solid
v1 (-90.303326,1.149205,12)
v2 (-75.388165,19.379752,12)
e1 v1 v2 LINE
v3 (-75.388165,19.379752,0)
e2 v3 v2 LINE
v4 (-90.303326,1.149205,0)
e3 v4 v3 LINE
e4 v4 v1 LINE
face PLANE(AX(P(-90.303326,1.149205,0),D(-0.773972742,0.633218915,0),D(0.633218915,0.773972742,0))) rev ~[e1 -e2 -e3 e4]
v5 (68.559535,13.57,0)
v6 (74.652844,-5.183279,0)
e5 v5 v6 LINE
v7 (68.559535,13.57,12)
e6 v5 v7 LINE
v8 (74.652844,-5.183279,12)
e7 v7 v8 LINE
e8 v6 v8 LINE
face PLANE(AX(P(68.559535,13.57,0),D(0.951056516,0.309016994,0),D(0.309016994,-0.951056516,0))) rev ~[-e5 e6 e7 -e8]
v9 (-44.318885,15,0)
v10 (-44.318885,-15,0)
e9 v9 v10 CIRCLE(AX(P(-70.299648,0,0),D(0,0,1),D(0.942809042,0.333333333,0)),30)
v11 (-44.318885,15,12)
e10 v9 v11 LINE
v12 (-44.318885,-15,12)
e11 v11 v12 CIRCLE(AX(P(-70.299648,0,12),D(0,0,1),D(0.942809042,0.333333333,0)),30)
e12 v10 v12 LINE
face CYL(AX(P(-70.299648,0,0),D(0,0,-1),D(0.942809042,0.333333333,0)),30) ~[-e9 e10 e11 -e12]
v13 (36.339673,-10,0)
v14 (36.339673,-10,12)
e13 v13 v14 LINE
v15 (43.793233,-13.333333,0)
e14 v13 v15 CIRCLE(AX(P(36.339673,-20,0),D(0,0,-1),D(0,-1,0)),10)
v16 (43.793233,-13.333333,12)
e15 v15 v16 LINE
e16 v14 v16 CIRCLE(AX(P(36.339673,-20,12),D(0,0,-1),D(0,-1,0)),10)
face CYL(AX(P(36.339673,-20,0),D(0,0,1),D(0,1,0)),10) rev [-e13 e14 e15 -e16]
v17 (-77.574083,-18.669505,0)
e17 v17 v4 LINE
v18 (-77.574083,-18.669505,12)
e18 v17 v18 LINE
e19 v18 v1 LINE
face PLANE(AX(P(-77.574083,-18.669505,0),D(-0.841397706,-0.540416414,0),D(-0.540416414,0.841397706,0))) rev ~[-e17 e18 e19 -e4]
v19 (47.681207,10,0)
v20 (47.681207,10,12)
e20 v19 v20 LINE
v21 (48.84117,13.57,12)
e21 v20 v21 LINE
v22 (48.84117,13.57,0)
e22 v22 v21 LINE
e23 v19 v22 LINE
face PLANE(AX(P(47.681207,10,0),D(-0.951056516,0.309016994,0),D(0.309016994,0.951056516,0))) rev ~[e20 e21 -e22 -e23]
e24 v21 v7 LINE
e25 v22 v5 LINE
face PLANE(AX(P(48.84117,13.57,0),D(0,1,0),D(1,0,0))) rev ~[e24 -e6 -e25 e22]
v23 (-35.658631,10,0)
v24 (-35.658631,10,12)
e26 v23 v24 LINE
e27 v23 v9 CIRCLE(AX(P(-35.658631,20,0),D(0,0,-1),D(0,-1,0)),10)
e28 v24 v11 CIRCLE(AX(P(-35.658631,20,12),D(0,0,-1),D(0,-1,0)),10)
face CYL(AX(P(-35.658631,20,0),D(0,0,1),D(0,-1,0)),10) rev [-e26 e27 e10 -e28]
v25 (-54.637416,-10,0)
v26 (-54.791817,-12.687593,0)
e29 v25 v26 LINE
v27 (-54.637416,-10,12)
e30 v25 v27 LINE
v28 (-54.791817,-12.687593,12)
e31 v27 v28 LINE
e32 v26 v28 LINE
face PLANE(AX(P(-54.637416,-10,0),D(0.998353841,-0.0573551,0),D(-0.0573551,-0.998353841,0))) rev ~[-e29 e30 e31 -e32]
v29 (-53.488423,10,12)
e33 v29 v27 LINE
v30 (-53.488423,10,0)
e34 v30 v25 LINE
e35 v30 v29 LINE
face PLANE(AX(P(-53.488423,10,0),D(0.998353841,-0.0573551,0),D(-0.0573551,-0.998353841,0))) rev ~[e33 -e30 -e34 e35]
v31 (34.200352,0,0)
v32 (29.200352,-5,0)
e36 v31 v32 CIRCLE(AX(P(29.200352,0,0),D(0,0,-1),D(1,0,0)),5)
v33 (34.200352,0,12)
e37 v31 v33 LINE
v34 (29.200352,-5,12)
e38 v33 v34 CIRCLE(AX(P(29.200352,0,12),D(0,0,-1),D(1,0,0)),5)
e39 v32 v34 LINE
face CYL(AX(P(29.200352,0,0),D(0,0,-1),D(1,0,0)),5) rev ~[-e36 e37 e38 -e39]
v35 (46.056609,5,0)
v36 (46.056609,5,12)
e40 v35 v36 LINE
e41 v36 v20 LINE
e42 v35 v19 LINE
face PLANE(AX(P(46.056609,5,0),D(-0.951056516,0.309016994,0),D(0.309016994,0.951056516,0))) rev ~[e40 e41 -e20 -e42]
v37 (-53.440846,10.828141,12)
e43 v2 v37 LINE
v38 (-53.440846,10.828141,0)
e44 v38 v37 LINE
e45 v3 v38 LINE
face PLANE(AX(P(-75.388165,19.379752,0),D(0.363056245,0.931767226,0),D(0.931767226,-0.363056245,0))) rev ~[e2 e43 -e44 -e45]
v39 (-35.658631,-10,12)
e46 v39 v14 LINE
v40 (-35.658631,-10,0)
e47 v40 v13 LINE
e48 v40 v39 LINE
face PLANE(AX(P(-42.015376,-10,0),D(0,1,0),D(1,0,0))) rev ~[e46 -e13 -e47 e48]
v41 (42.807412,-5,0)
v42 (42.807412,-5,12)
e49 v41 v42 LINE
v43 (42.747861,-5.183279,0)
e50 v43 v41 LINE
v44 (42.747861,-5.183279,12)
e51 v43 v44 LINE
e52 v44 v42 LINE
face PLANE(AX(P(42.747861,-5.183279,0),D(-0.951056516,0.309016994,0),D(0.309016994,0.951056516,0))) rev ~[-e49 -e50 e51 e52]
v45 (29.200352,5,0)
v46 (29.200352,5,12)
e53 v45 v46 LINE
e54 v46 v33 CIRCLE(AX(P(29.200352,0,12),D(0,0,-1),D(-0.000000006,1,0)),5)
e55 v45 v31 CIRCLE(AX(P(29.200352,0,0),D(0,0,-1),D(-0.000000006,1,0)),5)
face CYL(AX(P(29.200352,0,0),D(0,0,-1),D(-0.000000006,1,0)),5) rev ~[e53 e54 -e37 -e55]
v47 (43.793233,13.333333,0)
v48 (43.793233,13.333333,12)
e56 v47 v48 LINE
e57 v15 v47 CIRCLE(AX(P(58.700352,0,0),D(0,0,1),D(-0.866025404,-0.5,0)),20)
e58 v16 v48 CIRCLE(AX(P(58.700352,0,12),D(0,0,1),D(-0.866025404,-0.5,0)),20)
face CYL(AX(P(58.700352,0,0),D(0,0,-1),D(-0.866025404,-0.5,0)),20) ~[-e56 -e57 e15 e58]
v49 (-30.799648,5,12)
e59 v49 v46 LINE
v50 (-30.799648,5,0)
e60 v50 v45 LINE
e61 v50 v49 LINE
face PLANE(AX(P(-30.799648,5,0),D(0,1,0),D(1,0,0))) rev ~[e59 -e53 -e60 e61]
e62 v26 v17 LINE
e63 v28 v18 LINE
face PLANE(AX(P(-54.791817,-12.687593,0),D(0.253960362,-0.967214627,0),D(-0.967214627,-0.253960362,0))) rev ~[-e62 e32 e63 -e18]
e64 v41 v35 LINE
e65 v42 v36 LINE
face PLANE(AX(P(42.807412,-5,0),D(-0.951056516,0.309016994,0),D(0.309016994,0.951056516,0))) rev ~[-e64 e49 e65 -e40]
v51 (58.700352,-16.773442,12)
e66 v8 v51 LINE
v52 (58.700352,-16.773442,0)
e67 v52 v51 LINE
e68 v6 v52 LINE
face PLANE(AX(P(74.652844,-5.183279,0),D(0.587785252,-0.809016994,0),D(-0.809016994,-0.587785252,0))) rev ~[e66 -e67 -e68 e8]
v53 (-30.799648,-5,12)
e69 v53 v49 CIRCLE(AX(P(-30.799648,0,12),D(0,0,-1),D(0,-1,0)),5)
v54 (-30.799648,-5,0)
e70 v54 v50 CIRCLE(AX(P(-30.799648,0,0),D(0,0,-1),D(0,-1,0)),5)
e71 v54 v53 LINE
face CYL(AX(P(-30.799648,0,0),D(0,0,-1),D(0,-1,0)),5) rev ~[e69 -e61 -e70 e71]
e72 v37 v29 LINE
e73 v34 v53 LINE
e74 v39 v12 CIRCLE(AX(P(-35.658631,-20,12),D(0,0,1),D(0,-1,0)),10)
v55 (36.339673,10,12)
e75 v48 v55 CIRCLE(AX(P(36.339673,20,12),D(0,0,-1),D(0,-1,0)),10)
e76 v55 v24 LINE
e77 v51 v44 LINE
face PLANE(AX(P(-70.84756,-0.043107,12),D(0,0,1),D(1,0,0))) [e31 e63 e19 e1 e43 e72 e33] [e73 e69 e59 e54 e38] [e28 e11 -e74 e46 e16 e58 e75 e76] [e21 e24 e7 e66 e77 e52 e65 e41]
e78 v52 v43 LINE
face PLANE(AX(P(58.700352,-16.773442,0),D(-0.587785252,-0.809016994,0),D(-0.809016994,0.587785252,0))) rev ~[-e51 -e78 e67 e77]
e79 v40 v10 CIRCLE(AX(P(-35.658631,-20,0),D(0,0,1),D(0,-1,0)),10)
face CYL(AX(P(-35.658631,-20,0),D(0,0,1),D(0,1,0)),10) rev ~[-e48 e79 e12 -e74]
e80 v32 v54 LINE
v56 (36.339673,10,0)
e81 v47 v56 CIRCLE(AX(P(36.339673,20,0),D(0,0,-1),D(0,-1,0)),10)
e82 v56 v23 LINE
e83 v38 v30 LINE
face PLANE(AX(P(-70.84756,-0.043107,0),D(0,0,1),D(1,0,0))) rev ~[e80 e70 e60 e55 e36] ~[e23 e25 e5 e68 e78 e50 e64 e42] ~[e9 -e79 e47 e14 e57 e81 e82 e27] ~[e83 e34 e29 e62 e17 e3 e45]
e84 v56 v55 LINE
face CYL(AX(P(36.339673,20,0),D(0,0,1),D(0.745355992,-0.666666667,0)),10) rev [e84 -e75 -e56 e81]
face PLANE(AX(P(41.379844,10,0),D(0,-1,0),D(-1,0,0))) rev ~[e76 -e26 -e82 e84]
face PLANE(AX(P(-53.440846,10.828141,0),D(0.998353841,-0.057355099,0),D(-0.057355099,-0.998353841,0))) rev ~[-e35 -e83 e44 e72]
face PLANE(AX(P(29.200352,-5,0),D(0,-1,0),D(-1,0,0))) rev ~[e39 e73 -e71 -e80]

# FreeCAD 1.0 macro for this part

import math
import FreeCAD as App
import Part
import Sketcher
Q = App.Units.Quantity


def edges_at(feature, points):
    """Names of the edges that pass closest to the given points."""
    edges = feature.Shape.Edges
    near = lambda p: min(range(len(edges)), key=lambda i: edges[i].distToShape(Part.Vertex(*p))[0])
    return sorted({f"Edge{near(p) + 1}" for p in points})

doc = App.newDocument("Part")
body = doc.addObject("PartDesign::Body", "Body")

# Sketch on XY plane
sketch1 = doc.addObject("Sketcher::SketchObject", "Sketch")
body.addObject(sketch1)
sketch1.AttachmentSupport = (doc.XY_Plane, [""])
sketch1.MapMode = "FlatFace"
sketch1.addGeometry([
    Part.LineSegment(App.Vector(-42.02, -10, 0), App.Vector(41.38, -10, 0)),  # 0
    Part.ArcOfCircle(Part.Circle(App.Vector(58.7, 0, 0), App.Vector(0, 0, 1), 20), math.radians(-150), math.radians(150)),  # 1
    Part.LineSegment(App.Vector(41.38, 10, 0), App.Vector(-42.02, 10, 0)),  # 2
    Part.ArcOfCircle(Part.Circle(App.Vector(-70.3, 0, 0), App.Vector(0, 0, 1), 30), math.radians(19), math.radians(341)),  # 3
    Part.LineSegment(App.Vector(29.2, -5, 0), App.Vector(-30.8, -5, 0)),  # 4
    Part.ArcOfCircle(Part.Circle(App.Vector(-30.8, 0, 0), App.Vector(0, 0, 1), 5), math.radians(90), math.radians(270)),  # 5
    Part.LineSegment(App.Vector(-30.8, 5, 0), App.Vector(29.2, 5, 0)),  # 6
    Part.ArcOfCircle(Part.Circle(App.Vector(29.2, 0, 0), App.Vector(0, 0, 1), 5), math.radians(0), math.radians(90)),  # 7
    Part.ArcOfCircle(Part.Circle(App.Vector(29.2, 0, 0), App.Vector(0, 0, 1), 5), math.radians(-90), math.radians(0)),  # 8
    Part.LineSegment(App.Vector(58.7, -16.77, 0), App.Vector(42.75, -5.18, 0)),  # 9
    Part.LineSegment(App.Vector(42.75, -5.18, 0), App.Vector(42.81, -5, 0)),  # 10
    Part.LineSegment(App.Vector(42.81, -5, 0), App.Vector(46.06, 5, 0)),  # 11
    Part.LineSegment(App.Vector(46.06, 5, 0), App.Vector(47.68, 10, 0)),  # 12
    Part.LineSegment(App.Vector(47.68, 10, 0), App.Vector(48.84, 13.57, 0)),  # 13
    Part.LineSegment(App.Vector(48.84, 13.57, 0), App.Vector(68.56, 13.57, 0)),  # 14
    Part.LineSegment(App.Vector(68.56, 13.57, 0), App.Vector(74.65, -5.18, 0)),  # 15
    Part.LineSegment(App.Vector(74.65, -5.18, 0), App.Vector(58.7, -16.77, 0)),  # 16
    Part.LineSegment(App.Vector(-54.64, -10, 0), App.Vector(-54.79, -12.69, 0)),  # 17
    Part.LineSegment(App.Vector(-54.79, -12.69, 0), App.Vector(-77.57, -18.67, 0)),  # 18
    Part.LineSegment(App.Vector(-77.57, -18.67, 0), App.Vector(-90.3, 1.15, 0)),  # 19
    Part.LineSegment(App.Vector(-90.3, 1.15, 0), App.Vector(-75.39, 19.38, 0)),  # 20
    Part.LineSegment(App.Vector(-75.39, 19.38, 0), App.Vector(-53.44, 10.83, 0)),  # 21
    Part.LineSegment(App.Vector(-53.44, 10.83, 0), App.Vector(-53.49, 10, 0)),  # 22
    Part.LineSegment(App.Vector(-53.49, 10, 0), App.Vector(-54.64, -10, 0)),  # 23
], False)
sketch1.addConstraint([
    Sketcher.Constraint("Coincident", 0, 2, 1, 1),
    Sketcher.Constraint("Coincident", 1, 2, 2, 1),
    Sketcher.Constraint("Coincident", 2, 2, 3, 1),
    Sketcher.Constraint("Coincident", 3, 2, 0, 1),
    Sketcher.Constraint("Tangent", 4, 2, 5, 2),
    Sketcher.Constraint("Tangent", 5, 1, 6, 1),
    Sketcher.Constraint("Tangent", 6, 2, 7, 2),
    Sketcher.Constraint("Tangent", 7, 1, 8, 2),
    Sketcher.Constraint("Tangent", 8, 1, 4, 1),
    Sketcher.Constraint("Coincident", 9, 2, 10, 1),
    Sketcher.Constraint("Coincident", 10, 2, 11, 1),
    Sketcher.Constraint("Coincident", 11, 2, 12, 1),
    Sketcher.Constraint("Coincident", 12, 2, 13, 1),
    Sketcher.Constraint("Coincident", 13, 2, 14, 1),
    Sketcher.Constraint("Coincident", 14, 2, 15, 1),
    Sketcher.Constraint("Coincident", 15, 2, 16, 1),
    Sketcher.Constraint("Coincident", 16, 2, 9, 1),
    Sketcher.Constraint("Coincident", 17, 2, 18, 1),
    Sketcher.Constraint("Coincident", 18, 2, 19, 1),
    Sketcher.Constraint("Coincident", 19, 2, 20, 1),
    Sketcher.Constraint("Coincident", 20, 2, 21, 1),
    Sketcher.Constraint("Coincident", 21, 2, 22, 1),
    Sketcher.Constraint("Coincident", 22, 2, 23, 1),
    Sketcher.Constraint("Coincident", 23, 2, 17, 1),
    Sketcher.Constraint("Horizontal", 0),
    Sketcher.Constraint("Horizontal", 2),
    Sketcher.Constraint("Horizontal", 4),
    Sketcher.Constraint("Horizontal", 6),
    Sketcher.Constraint("Horizontal", 14),
    Sketcher.Constraint("Equal", 5, 7),
    Sketcher.Constraint("Symmetric", 0, 2, 1, 2, -1),
    Sketcher.Constraint("PointOnObject", 3, 3, -1),
    Sketcher.Constraint("PointOnObject", 5, 3, -1),
    Sketcher.Constraint("PointOnObject", 7, 1, -1),
    Sketcher.Constraint("Parallel", 10, 11),
    Sketcher.Constraint("Parallel", 11, 12),
    Sketcher.Constraint("Parallel", 12, 13),
    Sketcher.Constraint("Parallel", 17, 22),
    Sketcher.Constraint("Parallel", 22, 23),
    Sketcher.Constraint("Horizontal", 8, 1, 10, 2),
    Sketcher.Constraint("Horizontal", 6, 2, 11, 2),
    Sketcher.Constraint("Horizontal", 2, 2, 12, 2),
    Sketcher.Constraint("Horizontal", 9, 2, 15, 2),
    Sketcher.Constraint("Horizontal", 12, 2, 22, 2),
    Sketcher.Constraint("Horizontal", 3, 2, 23, 2),
    Sketcher.Constraint("Vertical", 1, 3, 16, 2),
    Sketcher.Constraint("Equal", 9, 15),
    Sketcher.Constraint("Equal", 15, 16),
    Sketcher.Constraint("Equal", 18, 19),
    Sketcher.Constraint("Equal", 19, 20),
    Sketcher.Constraint("Equal", 20, 21),
    Sketcher.Constraint("Radius", 1, Q("20 mm")),
    Sketcher.Constraint("Radius", 3, Q("30 mm")),
    Sketcher.Constraint("Radius", 5, Q("5 mm")),
    Sketcher.Constraint("DistanceX", 4, 2, 4, 1, Q("60 mm")),
    Sketcher.Constraint("Angle", 9, Q("144 deg")),
    Sketcher.Constraint("Angle", 10, Q("72 deg")),
    Sketcher.Constraint("Angle", 15, Q("-72 deg")),
    Sketcher.Constraint("DistanceY", 0, 2, -1, 1, Q("10 mm")),
    Sketcher.Constraint("DistanceX", 3, 3, 1, 3, Q("129 mm")),
    Sketcher.Constraint("DistanceX", 3, 3, 5, 3, Q("39.5 mm")),
    Sketcher.Constraint("DistanceY", -1, 1, 13, 2, Q("13.57 mm")),
    Sketcher.Constraint("DistanceY", 17, 2, 19, 2, Q("13.836798 mm")),
    Sketcher.Constraint("DistanceX", 3, 3, 21, 2, Q("16.858801 mm")),
    Sketcher.Constraint("DistanceX", 17, 2, 23, 2, Q("0.154401 mm")),
    Sketcher.Constraint("Distance", 10, Q("0.192711 mm")),
    Sketcher.Constraint("Distance", 18, Q("23.554509 mm")),
    Sketcher.Constraint("DistanceX", -1, 1, 9, 2, Q("42.747861 mm")),
    Sketcher.Constraint("DistanceY", -1, 1, 21, 2, Q("10.828141 mm")),
    Sketcher.Constraint("DistanceX", 17, 2, 3, 2, Q("12.776441 mm")),
    Sketcher.Constraint("DistanceY", 18, 2, 17, 2, Q("5.981912 mm")),
])
pad1 = doc.addObject("PartDesign::Pad", "Pad")
body.addObject(pad1)
pad1.Profile = sketch1
pad1.Length = 12
doc.recompute()

fillet = doc.addObject("PartDesign::Fillet", "Fillet")
body.addObject(fillet)
fillet.Base = (pad1, edges_at(pad1, [
    (41.38, -10, 6),
    (-42.015, -10, 6),
    (41.38, 10, 6),
    (-42.015, 10, 6),
]))
fillet.Radius = 10

doc.recompute()
